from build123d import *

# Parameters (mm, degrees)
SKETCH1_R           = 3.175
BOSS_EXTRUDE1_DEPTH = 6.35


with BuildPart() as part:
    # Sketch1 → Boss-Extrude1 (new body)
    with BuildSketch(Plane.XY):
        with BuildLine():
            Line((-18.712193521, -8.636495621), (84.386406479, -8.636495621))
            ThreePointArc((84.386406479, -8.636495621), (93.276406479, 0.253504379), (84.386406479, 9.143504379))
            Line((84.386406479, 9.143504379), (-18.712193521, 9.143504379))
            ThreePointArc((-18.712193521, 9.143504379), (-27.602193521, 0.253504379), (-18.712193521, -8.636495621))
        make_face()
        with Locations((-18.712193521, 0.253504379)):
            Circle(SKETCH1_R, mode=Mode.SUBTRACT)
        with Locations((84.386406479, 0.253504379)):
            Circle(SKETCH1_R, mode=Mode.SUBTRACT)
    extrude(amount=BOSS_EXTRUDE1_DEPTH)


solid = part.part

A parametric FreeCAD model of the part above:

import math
import FreeCAD as App
import Part
import Sketcher
Q = App.Units.Quantity

doc = App.newDocument("Part")
params = doc.addObject("Spreadsheet::Sheet", "Params")
for row, (alias, value) in enumerate([
    ("sketch1_diameter", "0.25 in"),
    ("sketch1_radius", "0.35 in"),
    ("sketch1_width", "4.059 in"),
    ("pad1_length", "0.25 in"),
], start=1):
    params.set(f"A{row}", alias)
    params.set(f"B{row}", "=" + value)
    params.setAlias(f"B{row}", alias)

body = doc.addObject("PartDesign::Body", "Body")

sketch1 = body.newObject("Sketcher::SketchObject", "Sketch")
sketch1.AttachmentSupport = (doc.getObject("XY_Plane"), [""])
sketch1.MapMode = "FlatFace"
sketch1.addGeometry([
    Part.LineSegment(App.Vector(-18.7, -8.6, 0), App.Vector(84.4, -8.6, 0)),
    Part.ArcOfCircle(Part.Circle(App.Vector(84.4, 0.3, 0), App.Vector(0, 0, 1), 8.9), math.radians(-90), math.radians(90)),
    Part.LineSegment(App.Vector(84.4, 9.1, 0), App.Vector(-18.7, 9.1, 0)),
    Part.ArcOfCircle(Part.Circle(App.Vector(-18.7, 0.3, 0), App.Vector(0, 0, 1), 8.9), math.radians(90), math.radians(270)),
    Part.Circle(App.Vector(-18.7, 0.3, 0), App.Vector(0, 0, 1), 3.2),
    Part.Circle(App.Vector(84.4, 0.3, 0), App.Vector(0, 0, 1), 3.2),
], False)
sketch1.addConstraint([
    Sketcher.Constraint("Tangent", 0, 2, 1, 1),
    Sketcher.Constraint("Tangent", 1, 2, 2, 1),
    Sketcher.Constraint("Tangent", 2, 2, 3, 1),
    Sketcher.Constraint("Tangent", 3, 2, 0, 1),
    Sketcher.Constraint("Horizontal", 0),
    Sketcher.Constraint("Horizontal", 2),
    Sketcher.Constraint("Coincident", 4, 3, 3, 3),
    Sketcher.Constraint("Coincident", 5, 3, 1, 3),
    Sketcher.Constraint("Equal", 4, 5),
    Sketcher.Constraint("Diameter", 4, Q("0.25 in")),
    Sketcher.Constraint("Radius", 1, Q("0.35 in")),
    Sketcher.Constraint("DistanceX", 0, 1, 0, 2, Q("4.059 in")),
    Sketcher.Constraint("DistanceX", -1, 1, 1, 3, 84.386406),
    Sketcher.Constraint("DistanceY", -1, 1, 1, 3, 0.253504),
])
sketch1.setExpression("Constraints[9]", "Params.sketch1_diameter")
sketch1.setExpression("Constraints[10]", "Params.sketch1_radius")
sketch1.setExpression("Constraints[11]", "Params.sketch1_width")
pad1 = body.newObject("PartDesign::Pad", "Pad")
pad1.Profile = sketch1
pad1.setExpression("Length", "Params.pad1_length")

doc.recompute()
